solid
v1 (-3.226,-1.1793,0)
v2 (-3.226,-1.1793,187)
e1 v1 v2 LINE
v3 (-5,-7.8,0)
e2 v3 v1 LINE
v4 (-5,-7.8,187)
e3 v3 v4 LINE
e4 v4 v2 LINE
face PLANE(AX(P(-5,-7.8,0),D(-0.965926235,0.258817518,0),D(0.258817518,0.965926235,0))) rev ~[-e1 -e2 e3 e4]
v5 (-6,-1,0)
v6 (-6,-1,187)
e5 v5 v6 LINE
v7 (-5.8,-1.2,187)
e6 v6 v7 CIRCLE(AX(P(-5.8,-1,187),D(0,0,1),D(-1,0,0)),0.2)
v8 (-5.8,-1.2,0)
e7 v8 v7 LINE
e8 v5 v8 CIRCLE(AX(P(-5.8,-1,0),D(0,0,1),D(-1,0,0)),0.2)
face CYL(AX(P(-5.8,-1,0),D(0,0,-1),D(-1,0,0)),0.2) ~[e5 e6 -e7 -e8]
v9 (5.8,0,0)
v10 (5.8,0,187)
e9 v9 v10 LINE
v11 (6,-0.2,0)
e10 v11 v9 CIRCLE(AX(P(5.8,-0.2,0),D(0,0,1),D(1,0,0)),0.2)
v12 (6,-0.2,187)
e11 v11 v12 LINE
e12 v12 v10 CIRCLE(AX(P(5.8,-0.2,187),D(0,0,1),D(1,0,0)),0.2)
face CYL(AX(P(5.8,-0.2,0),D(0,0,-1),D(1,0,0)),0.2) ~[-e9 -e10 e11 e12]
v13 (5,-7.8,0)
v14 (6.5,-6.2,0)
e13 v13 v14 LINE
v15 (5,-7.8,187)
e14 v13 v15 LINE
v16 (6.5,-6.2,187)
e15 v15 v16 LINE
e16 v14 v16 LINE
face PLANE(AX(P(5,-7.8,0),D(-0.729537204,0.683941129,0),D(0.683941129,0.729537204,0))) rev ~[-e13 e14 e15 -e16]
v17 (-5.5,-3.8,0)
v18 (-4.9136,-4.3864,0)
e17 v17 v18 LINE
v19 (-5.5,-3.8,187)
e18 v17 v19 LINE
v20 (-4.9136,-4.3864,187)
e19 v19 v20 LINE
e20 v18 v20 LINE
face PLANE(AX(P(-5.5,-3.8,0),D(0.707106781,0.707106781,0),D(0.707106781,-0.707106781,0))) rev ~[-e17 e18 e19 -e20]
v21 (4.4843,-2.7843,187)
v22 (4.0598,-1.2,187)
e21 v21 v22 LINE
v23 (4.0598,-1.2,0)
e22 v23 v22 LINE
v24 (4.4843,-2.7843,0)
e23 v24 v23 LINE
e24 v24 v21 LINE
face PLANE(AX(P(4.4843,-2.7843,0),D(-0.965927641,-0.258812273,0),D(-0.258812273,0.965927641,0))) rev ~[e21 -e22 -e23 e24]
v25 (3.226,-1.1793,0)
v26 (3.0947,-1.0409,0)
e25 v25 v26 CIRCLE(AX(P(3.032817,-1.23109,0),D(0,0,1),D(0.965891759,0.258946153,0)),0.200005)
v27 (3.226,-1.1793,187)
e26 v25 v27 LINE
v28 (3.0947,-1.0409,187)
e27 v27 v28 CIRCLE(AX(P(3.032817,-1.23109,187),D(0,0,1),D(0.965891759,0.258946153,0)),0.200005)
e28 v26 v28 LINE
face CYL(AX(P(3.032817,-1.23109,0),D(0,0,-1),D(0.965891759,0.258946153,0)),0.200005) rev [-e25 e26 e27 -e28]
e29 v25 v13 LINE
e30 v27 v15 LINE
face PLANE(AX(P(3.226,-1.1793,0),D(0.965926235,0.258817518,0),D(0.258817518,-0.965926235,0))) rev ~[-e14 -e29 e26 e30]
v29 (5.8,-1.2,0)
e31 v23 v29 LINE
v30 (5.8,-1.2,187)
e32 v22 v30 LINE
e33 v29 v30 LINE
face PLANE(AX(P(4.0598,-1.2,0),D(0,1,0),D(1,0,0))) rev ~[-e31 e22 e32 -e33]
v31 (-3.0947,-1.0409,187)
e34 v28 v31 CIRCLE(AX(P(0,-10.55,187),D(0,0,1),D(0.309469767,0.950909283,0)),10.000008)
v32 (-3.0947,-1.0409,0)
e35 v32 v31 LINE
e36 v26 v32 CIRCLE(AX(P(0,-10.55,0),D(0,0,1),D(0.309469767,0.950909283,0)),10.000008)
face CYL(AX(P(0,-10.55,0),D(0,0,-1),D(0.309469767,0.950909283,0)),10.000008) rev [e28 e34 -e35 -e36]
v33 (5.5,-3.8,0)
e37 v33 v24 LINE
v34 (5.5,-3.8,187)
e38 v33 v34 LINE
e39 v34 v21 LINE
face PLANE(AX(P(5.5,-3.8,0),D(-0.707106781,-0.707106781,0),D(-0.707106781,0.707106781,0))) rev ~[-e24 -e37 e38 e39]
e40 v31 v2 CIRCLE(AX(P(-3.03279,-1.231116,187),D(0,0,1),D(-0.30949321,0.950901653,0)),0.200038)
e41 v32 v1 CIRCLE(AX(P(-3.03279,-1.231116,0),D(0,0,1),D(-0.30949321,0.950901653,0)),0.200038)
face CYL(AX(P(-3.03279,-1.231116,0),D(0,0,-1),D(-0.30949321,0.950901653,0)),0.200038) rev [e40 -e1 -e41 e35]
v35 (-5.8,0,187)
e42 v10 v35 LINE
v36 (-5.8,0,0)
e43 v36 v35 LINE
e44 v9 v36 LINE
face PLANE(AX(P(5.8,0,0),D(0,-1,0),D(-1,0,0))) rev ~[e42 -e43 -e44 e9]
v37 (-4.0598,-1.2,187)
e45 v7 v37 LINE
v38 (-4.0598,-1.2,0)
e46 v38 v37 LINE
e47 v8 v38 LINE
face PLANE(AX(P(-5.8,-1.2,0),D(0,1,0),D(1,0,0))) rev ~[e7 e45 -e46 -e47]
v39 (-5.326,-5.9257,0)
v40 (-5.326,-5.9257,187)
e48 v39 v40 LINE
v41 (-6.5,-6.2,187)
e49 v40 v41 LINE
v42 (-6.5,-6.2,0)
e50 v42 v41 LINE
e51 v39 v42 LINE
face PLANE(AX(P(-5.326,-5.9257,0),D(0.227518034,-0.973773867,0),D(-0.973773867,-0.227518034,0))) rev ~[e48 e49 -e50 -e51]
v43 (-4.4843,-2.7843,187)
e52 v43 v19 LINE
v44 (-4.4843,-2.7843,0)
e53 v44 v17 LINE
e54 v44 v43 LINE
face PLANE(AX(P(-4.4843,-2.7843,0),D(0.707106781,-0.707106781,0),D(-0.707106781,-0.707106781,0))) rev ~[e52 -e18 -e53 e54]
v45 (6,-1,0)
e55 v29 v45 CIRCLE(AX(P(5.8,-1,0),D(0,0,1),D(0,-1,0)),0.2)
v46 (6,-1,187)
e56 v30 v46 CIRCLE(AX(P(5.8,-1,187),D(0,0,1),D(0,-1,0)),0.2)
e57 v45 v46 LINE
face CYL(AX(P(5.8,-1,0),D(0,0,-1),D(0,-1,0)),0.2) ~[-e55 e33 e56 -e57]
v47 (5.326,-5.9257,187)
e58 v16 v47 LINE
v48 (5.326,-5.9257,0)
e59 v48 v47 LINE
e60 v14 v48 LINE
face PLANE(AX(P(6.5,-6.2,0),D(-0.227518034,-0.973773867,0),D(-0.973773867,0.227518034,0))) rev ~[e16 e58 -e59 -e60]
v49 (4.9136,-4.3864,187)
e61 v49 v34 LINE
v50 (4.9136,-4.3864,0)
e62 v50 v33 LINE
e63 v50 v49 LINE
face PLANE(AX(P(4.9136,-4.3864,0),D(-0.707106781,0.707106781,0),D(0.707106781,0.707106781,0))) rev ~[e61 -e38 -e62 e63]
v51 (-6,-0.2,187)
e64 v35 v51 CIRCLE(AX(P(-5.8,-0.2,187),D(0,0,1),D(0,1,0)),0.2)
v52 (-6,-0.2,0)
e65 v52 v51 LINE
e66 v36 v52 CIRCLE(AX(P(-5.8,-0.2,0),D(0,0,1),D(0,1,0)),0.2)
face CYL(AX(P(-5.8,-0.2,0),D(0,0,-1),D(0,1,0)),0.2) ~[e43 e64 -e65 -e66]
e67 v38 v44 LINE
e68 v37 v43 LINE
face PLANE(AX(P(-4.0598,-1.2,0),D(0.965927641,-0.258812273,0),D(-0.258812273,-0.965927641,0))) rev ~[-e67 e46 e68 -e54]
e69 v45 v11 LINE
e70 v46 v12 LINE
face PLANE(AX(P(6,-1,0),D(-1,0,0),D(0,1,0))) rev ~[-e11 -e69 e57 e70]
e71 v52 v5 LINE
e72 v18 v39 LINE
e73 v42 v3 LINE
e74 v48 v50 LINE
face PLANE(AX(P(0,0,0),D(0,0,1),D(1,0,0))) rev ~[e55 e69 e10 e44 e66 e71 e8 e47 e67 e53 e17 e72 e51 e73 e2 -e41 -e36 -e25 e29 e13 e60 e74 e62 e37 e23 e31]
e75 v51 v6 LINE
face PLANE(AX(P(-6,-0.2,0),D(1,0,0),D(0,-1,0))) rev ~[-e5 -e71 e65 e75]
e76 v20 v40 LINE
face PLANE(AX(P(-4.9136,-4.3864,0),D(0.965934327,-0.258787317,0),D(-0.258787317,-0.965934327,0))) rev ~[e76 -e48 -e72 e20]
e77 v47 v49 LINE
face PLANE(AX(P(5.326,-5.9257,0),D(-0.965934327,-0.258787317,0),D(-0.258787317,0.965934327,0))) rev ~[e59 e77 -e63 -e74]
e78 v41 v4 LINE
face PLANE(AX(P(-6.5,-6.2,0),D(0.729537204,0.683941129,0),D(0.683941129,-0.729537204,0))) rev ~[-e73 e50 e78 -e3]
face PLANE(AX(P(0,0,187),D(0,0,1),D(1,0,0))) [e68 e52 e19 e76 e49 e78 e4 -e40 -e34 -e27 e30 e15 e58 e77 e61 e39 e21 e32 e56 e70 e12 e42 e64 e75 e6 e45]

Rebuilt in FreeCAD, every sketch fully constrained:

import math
import FreeCAD as App
import Part
import Sketcher
Q = App.Units.Quantity

doc = App.newDocument("Part")
params = doc.addObject("Spreadsheet::Sheet", "Params")
for row, (alias, value) in enumerate([
    ("sketch1_radius", "10 mm"),
    ("sketch1_radius2", "0.2 mm"),
    ("sketch1_width", "11.6 mm"),
    ("sketch1_height", "0.8 mm"),
    ("pad1_length", "187 mm"),
], start=1):
    params.set(f"A{row}", alias)
    params.set(f"B{row}", "=" + value)
    params.setAlias(f"B{row}", alias)

body = doc.addObject("PartDesign::Body", "Body")

sketch1 = body.newObject("Sketcher::SketchObject", "Sketch")
sketch1.AttachmentSupport = (doc.getObject("XY_Plane"), [""])
sketch1.MapMode = "FlatFace"
sketch1.addGeometry(Part.LineSegment(App.Vector(-5.33, -5.93, 0), App.Vector(-6.5, -6.2, 0)), False)
sketch1.addGeometry(Part.LineSegment(App.Vector(-6.5, -6.2, 0), App.Vector(-5, -7.8, 0)), False)
sketch1.addGeometry(Part.LineSegment(App.Vector(-5, -7.8, 0), App.Vector(-3.23, -1.18, 0)), False)
sketch1.addGeometry(Part.ArcOfCircle(Part.Circle(App.Vector(-3.03, -1.23, 0), App.Vector(0, 0, 1), 0.2), math.radians(108), math.radians(165)), False)
sketch1.addGeometry(Part.ArcOfCircle(Part.Circle(App.Vector(0, -10.55, 0), App.Vector(0, 0, 1), 10), math.radians(72), math.radians(108)), False)
sketch1.addGeometry(Part.ArcOfCircle(Part.Circle(App.Vector(3.03, -1.23, 0), App.Vector(0, 0, 1), 0.2), math.radians(15), math.radians(72)), False)
sketch1.addGeometry(Part.LineSegment(App.Vector(3.23, -1.18, 0), App.Vector(5, -7.8, 0)), False)
sketch1.addGeometry(Part.LineSegment(App.Vector(5, -7.8, 0), App.Vector(6.5, -6.2, 0)), False)
sketch1.addGeometry(Part.LineSegment(App.Vector(6.5, -6.2, 0), App.Vector(5.33, -5.93, 0)), False)
sketch1.addGeometry(Part.LineSegment(App.Vector(5.33, -5.93, 0), App.Vector(4.91, -4.39, 0)), False)
sketch1.addGeometry(Part.LineSegment(App.Vector(4.91, -4.39, 0), App.Vector(5.5, -3.8, 0)), False)
sketch1.addGeometry(Part.LineSegment(App.Vector(5.5, -3.8, 0), App.Vector(4.48, -2.78, 0)), False)
sketch1.addGeometry(Part.LineSegment(App.Vector(4.48, -2.78, 0), App.Vector(4.06, -1.2, 0)), False)
sketch1.addGeometry(Part.LineSegment(App.Vector(4.06, -1.2, 0), App.Vector(5.8, -1.2, 0)), False)
sketch1.addGeometry(Part.ArcOfCircle(Part.Circle(App.Vector(5.8, -1, 0), App.Vector(0, 0, 1), 0.2), math.radians(-90), math.radians(0)), False)
sketch1.addGeometry(Part.LineSegment(App.Vector(6, -1, 0), App.Vector(6, -0.2, 0)), False)
sketch1.addGeometry(Part.ArcOfCircle(Part.Circle(App.Vector(5.8, -0.2, 0), App.Vector(0, 0, 1), 0.2), math.radians(0), math.radians(90)), False)
sketch1.addGeometry(Part.LineSegment(App.Vector(5.8, 0, 0), App.Vector(-5.8, 0, 0)), False)
sketch1.addGeometry(Part.ArcOfCircle(Part.Circle(App.Vector(-5.8, -0.2, 0), App.Vector(0, 0, 1), 0.2), math.radians(90), math.radians(180)), False)
sketch1.addGeometry(Part.LineSegment(App.Vector(-6, -0.2, 0), App.Vector(-6, -1, 0)), False)
sketch1.addGeometry(Part.ArcOfCircle(Part.Circle(App.Vector(-5.8, -1, 0), App.Vector(0, 0, 1), 0.2), math.radians(180), math.radians(270)), False)
sketch1.addGeometry(Part.LineSegment(App.Vector(-5.8, -1.2, 0), App.Vector(-4.06, -1.2, 0)), False)
sketch1.addGeometry(Part.LineSegment(App.Vector(-4.06, -1.2, 0), App.Vector(-4.48, -2.78, 0)), False)
sketch1.addGeometry(Part.LineSegment(App.Vector(-4.48, -2.78, 0), App.Vector(-5.5, -3.8, 0)), False)
sketch1.addGeometry(Part.LineSegment(App.Vector(-5.5, -3.8, 0), App.Vector(-4.91, -4.39, 0)), False)
sketch1.addGeometry(Part.LineSegment(App.Vector(-4.91, -4.39, 0), App.Vector(-5.33, -5.93, 0)), False)
sketch1.addConstraint(Sketcher.Constraint("Coincident", 0, 2, 1, 1))
sketch1.addConstraint(Sketcher.Constraint("Coincident", 1, 2, 2, 1))
sketch1.addConstraint(Sketcher.Constraint("Tangent", 2, 2, 3, 2))
sketch1.addConstraint(Sketcher.Constraint("Tangent", 3, 1, 4, 2))
sketch1.addConstraint(Sketcher.Constraint("Tangent", 4, 1, 5, 2))
sketch1.addConstraint(Sketcher.Constraint("Tangent", 5, 1, 6, 1))
sketch1.addConstraint(Sketcher.Constraint("Coincident", 6, 2, 7, 1))
sketch1.addConstraint(Sketcher.Constraint("Coincident", 7, 2, 8, 1))
sketch1.addConstraint(Sketcher.Constraint("Coincident", 8, 2, 9, 1))
sketch1.addConstraint(Sketcher.Constraint("Coincident", 9, 2, 10, 1))
sketch1.addConstraint(Sketcher.Constraint("Coincident", 10, 2, 11, 1))
sketch1.addConstraint(Sketcher.Constraint("Coincident", 11, 2, 12, 1))
sketch1.addConstraint(Sketcher.Constraint("Coincident", 12, 2, 13, 1))
sketch1.addConstraint(Sketcher.Constraint("Tangent", 13, 2, 14, 1))
sketch1.addConstraint(Sketcher.Constraint("Tangent", 14, 2, 15, 1))
sketch1.addConstraint(Sketcher.Constraint("Tangent", 15, 2, 16, 1))
sketch1.addConstraint(Sketcher.Constraint("Tangent", 16, 2, 17, 1))
sketch1.addConstraint(Sketcher.Constraint("Tangent", 17, 2, 18, 1))
sketch1.addConstraint(Sketcher.Constraint("Tangent", 18, 2, 19, 1))
sketch1.addConstraint(Sketcher.Constraint("Tangent", 19, 2, 20, 1))
sketch1.addConstraint(Sketcher.Constraint("Tangent", 20, 2, 21, 1))
sketch1.addConstraint(Sketcher.Constraint("Coincident", 21, 2, 22, 1))
sketch1.addConstraint(Sketcher.Constraint("Coincident", 22, 2, 23, 1))
sketch1.addConstraint(Sketcher.Constraint("Coincident", 23, 2, 24, 1))
sketch1.addConstraint(Sketcher.Constraint("Coincident", 24, 2, 25, 1))
sketch1.addConstraint(Sketcher.Constraint("Coincident", 25, 2, 0, 1))
sketch1.addConstraint(Sketcher.Constraint("Horizontal", 13))
sketch1.addConstraint(Sketcher.Constraint("Vertical", 15))
sketch1.addConstraint(Sketcher.Constraint("Horizontal", 17))
sketch1.addConstraint(Sketcher.Constraint("Vertical", 19))
sketch1.addConstraint(Sketcher.Constraint("Horizontal", 21))
sketch1.addConstraint(Sketcher.Constraint("Equal", 3, 5))
sketch1.addConstraint(Sketcher.Constraint("Equal", 5, 14))
sketch1.addConstraint(Sketcher.Constraint("Equal", 14, 16))
sketch1.addConstraint(Sketcher.Constraint("Equal", 16, 18))
sketch1.addConstraint(Sketcher.Constraint("Equal", 18, 20))
sketch1.addConstraint(Sketcher.Constraint("Symmetric", 16, 2, 17, 2, -1, 1))
sketch1.addConstraint(Sketcher.Constraint("Symmetric", 3, 3, 5, 3, -2))
sketch1.addConstraint(Sketcher.Constraint("Symmetric", 1, 2, 6, 2, -2))
sketch1.addConstraint(Sketcher.Constraint("Symmetric", 0, 2, 7, 2, -2))
sketch1.addConstraint(Sketcher.Constraint("Symmetric", 12, 2, 21, 2, -2))
sketch1.addConstraint(Sketcher.Constraint("Symmetric", 11, 2, 22, 2, -2))
sketch1.addConstraint(Sketcher.Constraint("Symmetric", 10, 2, 23, 2, -2))
sketch1.addConstraint(Sketcher.Constraint("Symmetric", 9, 2, 24, 2, -2))
sketch1.addConstraint(Sketcher.Constraint("Symmetric", 8, 2, 25, 2, -2))
sketch1.addConstraint(Sketcher.Constraint("Parallel", 6, 9))
sketch1.addConstraint(Sketcher.Constraint("Perpendicular", 10, 11))
sketch1.addConstraint(Sketcher.Constraint("Parallel", 9, 12))
sketch1.addConstraint(Sketcher.Constraint("Perpendicular", 11, 23))
sketch1.addConstraint(Sketcher.Constraint("Radius", 4, 10.0))
sketch1.addConstraint(Sketcher.Constraint("Radius", 3, 0.2))
sketch1.addConstraint(Sketcher.Constraint("Angle", 2, Q("75 deg")))
sketch1.addConstraint(Sketcher.Constraint("DistanceX", 17, 2, 17, 1, 11.6))
sketch1.addConstraint(Sketcher.Constraint("DistanceY", 15, 1, 15, 2, 0.8))
sketch1.addConstraint(Sketcher.Constraint("DistanceX", 1, 2, -1, 1, 5.0))
sketch1.addConstraint(Sketcher.Constraint("DistanceY", 0, 2, 18, 3, 6.0))
sketch1.addConstraint(Sketcher.Constraint("DistanceX", 10, 2, 7, 2, 1.0))
sketch1.addConstraint(Sketcher.Constraint("DistanceX", 0, 2, -1, 1, 6.5))
sketch1.addConstraint(Sketcher.Constraint("DistanceY", 1, 2, -1, 1, 7.8))
sketch1.addConstraint(Sketcher.Constraint("DistanceY", 10, 2, -1, 1, 3.8))
sketch1.addConstraint(Sketcher.Constraint("Angle", 0, Q("-166.849 deg")))
sketch1.addConstraint(Sketcher.Constraint("DistanceX", 5, 1, 8, 2, 2.1))
sketch1.addConstraint(Sketcher.Constraint("DistanceY", 4, 3, -1, 1, 10.55))
sketch1.addConstraint(Sketcher.Constraint("DistanceX", 13, 1, 13, 2, 1.7402))
sketch1.setExpression("Constraints[49]", "Params.sketch1_radius")
sketch1.setExpression("Constraints[50]", "Params.sketch1_radius2")
sketch1.setExpression("Constraints[52]", "Params.sketch1_width")
sketch1.setExpression("Constraints[53]", "Params.sketch1_height")
pad1 = body.newObject("PartDesign::Pad", "Pad")
pad1.Profile = sketch1
pad1.setExpression("Length", "Params.pad1_length")

doc.recompute()
